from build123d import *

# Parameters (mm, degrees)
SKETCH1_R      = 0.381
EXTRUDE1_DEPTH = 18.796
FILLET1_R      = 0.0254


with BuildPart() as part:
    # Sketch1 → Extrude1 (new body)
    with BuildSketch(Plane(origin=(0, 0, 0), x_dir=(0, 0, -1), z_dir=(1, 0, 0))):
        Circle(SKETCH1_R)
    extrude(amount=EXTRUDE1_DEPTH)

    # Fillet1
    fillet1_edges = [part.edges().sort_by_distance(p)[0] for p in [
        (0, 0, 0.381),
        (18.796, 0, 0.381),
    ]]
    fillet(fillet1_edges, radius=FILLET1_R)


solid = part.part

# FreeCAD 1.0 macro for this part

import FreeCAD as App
import Part
import Sketcher
Q = App.Units.Quantity


def edges_at(feature, points):
    """Names of the edges that pass closest to the given points."""
    edges = feature.Shape.Edges
    near = lambda p: min(range(len(edges)), key=lambda i: edges[i].distToShape(Part.Vertex(*p))[0])
    return sorted({f"Edge{near(p) + 1}" for p in points})

doc = App.newDocument("Part")
body = doc.addObject("PartDesign::Body", "Body")

# Sketch on YZ plane
sketch1 = doc.addObject("Sketcher::SketchObject", "Sketch")
body.addObject(sketch1)
sketch1.AttachmentSupport = (doc.YZ_Plane, [""])
sketch1.MapMode = "FlatFace"
sketch1.addGeometry(Part.Circle(App.Vector(0, 0, 0), App.Vector(0, 0, 1), 0.38), False)
sketch1.addConstraint([
    Sketcher.Constraint("Coincident", 0, 3, -1, 1),
    Sketcher.Constraint("Diameter", 0, Q("0.03 in")),
])
pad1 = doc.addObject("PartDesign::Pad", "Pad")
body.addObject(pad1)
pad1.Profile = sketch1
pad1.Length = Q("0.74 in")
doc.recompute()

fillet = doc.addObject("PartDesign::Fillet", "Fillet")
body.addObject(fillet)
fillet.Base = (pad1, edges_at(pad1, [(0, 0, 0.381), (18.796, 0, 0.381)]))
fillet.Radius = Q("0.001 in")

doc.recompute()
